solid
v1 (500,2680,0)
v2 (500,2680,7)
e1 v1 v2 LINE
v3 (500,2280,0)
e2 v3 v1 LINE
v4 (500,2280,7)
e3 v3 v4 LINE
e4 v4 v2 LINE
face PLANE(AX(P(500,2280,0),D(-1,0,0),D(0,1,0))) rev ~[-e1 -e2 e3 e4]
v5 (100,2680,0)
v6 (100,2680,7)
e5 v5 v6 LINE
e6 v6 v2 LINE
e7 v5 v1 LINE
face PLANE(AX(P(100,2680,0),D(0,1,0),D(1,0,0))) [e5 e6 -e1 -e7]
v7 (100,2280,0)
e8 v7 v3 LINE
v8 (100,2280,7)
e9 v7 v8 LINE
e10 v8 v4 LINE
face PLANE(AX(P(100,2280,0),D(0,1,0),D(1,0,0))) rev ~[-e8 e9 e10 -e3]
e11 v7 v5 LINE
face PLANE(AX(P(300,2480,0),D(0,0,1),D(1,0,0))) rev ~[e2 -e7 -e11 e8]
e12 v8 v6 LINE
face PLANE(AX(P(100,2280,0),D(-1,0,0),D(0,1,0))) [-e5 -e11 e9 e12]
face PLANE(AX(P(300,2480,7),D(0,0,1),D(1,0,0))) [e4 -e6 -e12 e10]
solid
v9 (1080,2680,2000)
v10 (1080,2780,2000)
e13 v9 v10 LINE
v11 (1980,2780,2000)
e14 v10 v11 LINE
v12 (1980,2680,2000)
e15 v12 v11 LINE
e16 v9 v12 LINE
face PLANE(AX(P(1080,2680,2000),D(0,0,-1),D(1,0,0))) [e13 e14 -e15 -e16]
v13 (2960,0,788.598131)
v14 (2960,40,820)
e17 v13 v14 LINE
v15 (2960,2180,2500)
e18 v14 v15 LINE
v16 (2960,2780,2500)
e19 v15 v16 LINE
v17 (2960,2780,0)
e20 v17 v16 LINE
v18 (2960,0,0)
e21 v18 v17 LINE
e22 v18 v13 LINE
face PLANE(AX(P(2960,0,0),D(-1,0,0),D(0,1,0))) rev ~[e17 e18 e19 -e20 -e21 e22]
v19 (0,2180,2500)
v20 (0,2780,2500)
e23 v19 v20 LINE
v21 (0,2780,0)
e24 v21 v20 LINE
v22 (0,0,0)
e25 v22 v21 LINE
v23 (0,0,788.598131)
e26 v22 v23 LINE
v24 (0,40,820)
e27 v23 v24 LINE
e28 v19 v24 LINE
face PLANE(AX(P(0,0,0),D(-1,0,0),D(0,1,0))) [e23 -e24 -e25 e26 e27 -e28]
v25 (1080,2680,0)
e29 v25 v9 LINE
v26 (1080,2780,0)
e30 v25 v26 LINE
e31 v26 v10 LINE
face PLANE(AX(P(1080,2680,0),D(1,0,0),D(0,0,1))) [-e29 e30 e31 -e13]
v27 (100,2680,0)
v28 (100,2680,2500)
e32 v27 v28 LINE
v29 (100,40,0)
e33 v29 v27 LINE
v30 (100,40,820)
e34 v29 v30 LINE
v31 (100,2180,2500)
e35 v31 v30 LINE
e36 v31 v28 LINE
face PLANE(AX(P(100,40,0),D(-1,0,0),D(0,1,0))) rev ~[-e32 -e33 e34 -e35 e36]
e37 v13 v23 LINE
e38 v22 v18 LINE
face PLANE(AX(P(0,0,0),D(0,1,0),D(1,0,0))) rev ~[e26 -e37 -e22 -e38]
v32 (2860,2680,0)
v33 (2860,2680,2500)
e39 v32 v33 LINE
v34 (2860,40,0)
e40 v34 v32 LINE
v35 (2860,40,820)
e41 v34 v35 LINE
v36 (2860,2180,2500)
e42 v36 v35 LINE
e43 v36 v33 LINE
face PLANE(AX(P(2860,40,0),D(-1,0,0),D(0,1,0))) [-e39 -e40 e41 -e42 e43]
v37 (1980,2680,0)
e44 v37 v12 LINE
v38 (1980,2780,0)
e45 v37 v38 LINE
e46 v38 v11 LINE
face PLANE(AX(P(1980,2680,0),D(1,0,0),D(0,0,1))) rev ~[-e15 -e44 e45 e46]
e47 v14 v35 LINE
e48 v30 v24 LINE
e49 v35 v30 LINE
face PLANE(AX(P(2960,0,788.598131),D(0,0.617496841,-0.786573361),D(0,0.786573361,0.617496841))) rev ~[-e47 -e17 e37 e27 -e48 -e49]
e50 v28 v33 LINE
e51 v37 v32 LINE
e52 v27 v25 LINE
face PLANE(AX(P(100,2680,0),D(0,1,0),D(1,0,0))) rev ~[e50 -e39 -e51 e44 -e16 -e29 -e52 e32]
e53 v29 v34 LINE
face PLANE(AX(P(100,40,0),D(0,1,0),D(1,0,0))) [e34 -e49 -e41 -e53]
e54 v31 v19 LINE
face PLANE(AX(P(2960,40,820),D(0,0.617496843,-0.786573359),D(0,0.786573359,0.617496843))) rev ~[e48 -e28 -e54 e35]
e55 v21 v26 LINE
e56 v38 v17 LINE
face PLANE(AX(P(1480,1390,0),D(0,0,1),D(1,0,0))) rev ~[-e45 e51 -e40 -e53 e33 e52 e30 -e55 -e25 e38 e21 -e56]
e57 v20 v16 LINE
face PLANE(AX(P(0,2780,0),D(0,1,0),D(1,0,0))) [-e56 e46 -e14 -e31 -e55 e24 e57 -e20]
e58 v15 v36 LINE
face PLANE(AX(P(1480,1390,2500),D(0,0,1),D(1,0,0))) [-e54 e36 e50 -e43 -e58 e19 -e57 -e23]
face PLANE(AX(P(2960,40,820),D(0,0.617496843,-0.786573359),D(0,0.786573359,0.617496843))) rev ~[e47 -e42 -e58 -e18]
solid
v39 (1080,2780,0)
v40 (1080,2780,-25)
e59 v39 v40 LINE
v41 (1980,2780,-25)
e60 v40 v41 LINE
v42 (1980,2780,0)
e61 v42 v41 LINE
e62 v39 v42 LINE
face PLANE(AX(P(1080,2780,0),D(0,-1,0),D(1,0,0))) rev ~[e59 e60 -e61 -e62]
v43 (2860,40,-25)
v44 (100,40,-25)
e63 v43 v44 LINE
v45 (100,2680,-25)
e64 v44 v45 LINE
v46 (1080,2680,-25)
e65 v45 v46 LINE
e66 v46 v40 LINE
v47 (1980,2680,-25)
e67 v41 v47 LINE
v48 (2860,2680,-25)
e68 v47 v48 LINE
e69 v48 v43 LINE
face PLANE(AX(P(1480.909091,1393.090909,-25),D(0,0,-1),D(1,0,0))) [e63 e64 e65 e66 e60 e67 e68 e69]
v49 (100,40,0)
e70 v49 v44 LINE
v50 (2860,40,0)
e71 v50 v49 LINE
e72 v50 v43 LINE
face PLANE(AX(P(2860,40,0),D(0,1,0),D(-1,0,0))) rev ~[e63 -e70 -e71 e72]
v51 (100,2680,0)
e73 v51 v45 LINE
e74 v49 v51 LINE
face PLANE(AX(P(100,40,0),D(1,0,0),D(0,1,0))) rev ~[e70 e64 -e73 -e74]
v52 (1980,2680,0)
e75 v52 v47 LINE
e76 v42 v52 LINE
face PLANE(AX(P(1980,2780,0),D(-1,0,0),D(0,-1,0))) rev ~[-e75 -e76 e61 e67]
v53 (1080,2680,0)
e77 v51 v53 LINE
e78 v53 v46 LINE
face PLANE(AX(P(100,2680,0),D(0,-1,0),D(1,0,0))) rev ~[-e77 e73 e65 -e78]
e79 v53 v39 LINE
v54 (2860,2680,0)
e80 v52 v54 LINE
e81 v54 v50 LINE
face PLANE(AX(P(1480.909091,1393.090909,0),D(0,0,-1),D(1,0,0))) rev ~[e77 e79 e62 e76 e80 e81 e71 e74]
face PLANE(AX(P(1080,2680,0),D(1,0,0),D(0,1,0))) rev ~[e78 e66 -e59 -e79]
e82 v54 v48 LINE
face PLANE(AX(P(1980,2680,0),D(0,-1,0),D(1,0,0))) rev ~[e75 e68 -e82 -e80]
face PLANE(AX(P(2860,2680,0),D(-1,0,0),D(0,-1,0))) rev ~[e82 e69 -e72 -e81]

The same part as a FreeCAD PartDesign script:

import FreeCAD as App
import Part
import Sketcher
from FreeCAD import Vector
Q = App.Units.Quantity

doc = App.newDocument("Part")
body = doc.addObject("PartDesign::Body", "Body")

sketch1 = body.newObject("Sketcher::SketchObject", "Sketch")
sketch1.AttachmentSupport = (doc.getObject("XY_Plane"), [""])
sketch1.MapMode = "FlatFace"
sketch1.addGeometry([
    Part.LineSegment(Vector(0, 2780, 0), Vector(0, 0, 0)),
    Part.LineSegment(Vector(0, 0, 0), Vector(2960, 0, 0)),
    Part.LineSegment(Vector(2960, 0, 0), Vector(2960, 2780, 0)),
    Part.LineSegment(Vector(2960, 2780, 0), Vector(0, 2780, 0)),
    Part.LineSegment(Vector(2860, 40, 0), Vector(100, 40, 0)),
    Part.LineSegment(Vector(100, 40, 0), Vector(100, 2680, 0)),
    Part.LineSegment(Vector(100, 2680, 0), Vector(2860, 2680, 0)),
    Part.LineSegment(Vector(2860, 2680, 0), Vector(2860, 40, 0)),
], False)
sketch1.addConstraint([
    Sketcher.Constraint("Coincident", 0, 2, 1, 1),
    Sketcher.Constraint("Coincident", 1, 2, 2, 1),
    Sketcher.Constraint("Coincident", 2, 2, 3, 1),
    Sketcher.Constraint("Coincident", 3, 2, 0, 1),
    Sketcher.Constraint("Coincident", 4, 2, 5, 1),
    Sketcher.Constraint("Coincident", 5, 2, 6, 1),
    Sketcher.Constraint("Coincident", 6, 2, 7, 1),
    Sketcher.Constraint("Coincident", 7, 2, 4, 1),
    Sketcher.Constraint("Vertical", 0),
    Sketcher.Constraint("Horizontal", 1),
    Sketcher.Constraint("Vertical", 2),
    Sketcher.Constraint("Horizontal", 3),
    Sketcher.Constraint("Horizontal", 4),
    Sketcher.Constraint("Vertical", 5),
    Sketcher.Constraint("Horizontal", 6),
    Sketcher.Constraint("Vertical", 7),
    Sketcher.Constraint("Coincident", 0, 2, -1, 1),
    Sketcher.Constraint("DistanceX", 1, 1, 1, 2, Q("2960 mm")),
    Sketcher.Constraint("DistanceX", 4, 2, 4, 1, Q("2760 mm")),
    Sketcher.Constraint("DistanceY", 0, 2, 0, 1, Q("2780 mm")),
    Sketcher.Constraint("DistanceY", 5, 1, 5, 2, Q("2640 mm")),
    Sketcher.Constraint("DistanceX", -1, 1, 4, 2, Q("100 mm")),
    Sketcher.Constraint("DistanceY", -1, 1, 4, 2, Q("40 mm")),
])
pad1 = body.newObject("PartDesign::Pad", "Pad")
pad1.Profile = sketch1
pad1.Length = 2500

sketch2 = body.newObject("Sketcher::SketchObject", "Sketch001")
sketch2.AttachmentSupport = (doc.getObject("XZ_Plane"), [""])
sketch2.MapMode = "FlatFace"
sketch2.AttachmentOffset = App.Placement(Vector(0, 0, -2680), App.Rotation())
sketch2.addGeometry([
    Part.LineSegment(Vector(1080, 2000, 0), Vector(1080, 0, 0)),
    Part.LineSegment(Vector(1080, 0, 0), Vector(1980, 0, 0)),
    Part.LineSegment(Vector(1980, 0, 0), Vector(1980, 2000, 0)),
    Part.LineSegment(Vector(1980, 2000, 0), Vector(1080, 2000, 0)),
], False)
sketch2.addConstraint([
    Sketcher.Constraint("Coincident", 0, 2, 1, 1),
    Sketcher.Constraint("Coincident", 1, 2, 2, 1),
    Sketcher.Constraint("Coincident", 2, 2, 3, 1),
    Sketcher.Constraint("Coincident", 3, 2, 0, 1),
    Sketcher.Constraint("Vertical", 0),
    Sketcher.Constraint("Horizontal", 1),
    Sketcher.Constraint("Vertical", 2),
    Sketcher.Constraint("Horizontal", 3),
    Sketcher.Constraint("PointOnObject", 0, 2, -1),
    Sketcher.Constraint("DistanceX", 1, 1, 1, 2, Q("900 mm")),
    Sketcher.Constraint("DistanceY", 0, 2, 0, 1, Q("2000 mm")),
    Sketcher.Constraint("DistanceX", -1, 1, 0, 2, Q("1080 mm")),
])
pocket1 = body.newObject("PartDesign::Pocket", "Pocket")
pocket1.Profile = sketch2
pocket1.Type = "ThroughAll"

sketch3 = body.newObject("Sketcher::SketchObject", "Sketch002")
sketch3.AttachmentSupport = (doc.getObject("YZ_Plane"), [""])
sketch3.MapMode = "FlatFace"
sketch3.AttachmentOffset = App.Placement(Vector(0, 0, 2960), App.Rotation())
sketch3.addGeometry([
    Part.LineSegment(Vector(0, 2500, 0), Vector(0, 820, 0)),
    Part.LineSegment(Vector(0, 820, 0), Vector(40, 820, 0)),
    Part.LineSegment(Vector(40, 820, 0), Vector(2180, 2500, 0)),
    Part.LineSegment(Vector(2180, 2500, 0), Vector(0, 2500, 0)),
], False)
sketch3.addConstraint([
    Sketcher.Constraint("Coincident", 0, 2, 1, 1),
    Sketcher.Constraint("Coincident", 1, 2, 2, 1),
    Sketcher.Constraint("Coincident", 2, 2, 3, 1),
    Sketcher.Constraint("Coincident", 3, 2, 0, 1),
    Sketcher.Constraint("Vertical", 0),
    Sketcher.Constraint("Horizontal", 1),
    Sketcher.Constraint("Horizontal", 3),
    Sketcher.Constraint("PointOnObject", 0, 2, -2),
    Sketcher.Constraint("DistanceX", 1, 1, 1, 2, Q("40 mm")),
    Sketcher.Constraint("DistanceX", 3, 2, 3, 1, Q("2180 mm")),
    Sketcher.Constraint("DistanceY", 0, 2, 0, 1, Q("1680 mm")),
    Sketcher.Constraint("DistanceY", -1, 1, 0, 2, Q("820 mm")),
])
pocket2 = body.newObject("PartDesign::Pocket", "Pocket001")
pocket2.Profile = sketch3
pocket2.Type = "ThroughAll"

sketch4 = body.newObject("Sketcher::SketchObject", "Sketch003")
sketch4.AttachmentSupport = (doc.getObject("YZ_Plane"), [""])
sketch4.MapMode = "FlatFace"
sketch4.AttachmentOffset = App.Placement(Vector(0, 0, 2960), App.Rotation())
sketch4.addGeometry([
    Part.LineSegment(Vector(40, 820, 0), Vector(0, 820, 0)),
    Part.LineSegment(Vector(0, 820, 0), Vector(0, 789, 0)),
    Part.LineSegment(Vector(0, 789, 0), Vector(40, 820, 0)),
], False)
sketch4.addConstraint([
    Sketcher.Constraint("Coincident", 0, 2, 1, 1),
    Sketcher.Constraint("Coincident", 1, 2, 2, 1),
    Sketcher.Constraint("Coincident", 2, 2, 0, 1),
    Sketcher.Constraint("Horizontal", 0),
    Sketcher.Constraint("Vertical", 1),
    Sketcher.Constraint("PointOnObject", 0, 2, -2),
    Sketcher.Constraint("DistanceX", 0, 2, 0, 1, Q("40 mm")),
    Sketcher.Constraint("DistanceY", -1, 1, 0, 2, Q("820 mm")),
    Sketcher.Constraint("DistanceY", 1, 2, 1, 1, Q("31.401869 mm")),
])
pocket3 = body.newObject("PartDesign::Pocket", "Pocket002")
pocket3.Profile = sketch4
pocket3.Type = "ThroughAll"
body2 = doc.addObject("PartDesign::Body", "Body001")

sketch5 = body2.newObject("Sketcher::SketchObject", "Sketch004")
sketch5.AttachmentSupport = (doc.getObject("XY_Plane001"), [""])
sketch5.MapMode = "FlatFace"
sketch5.addGeometry([
    Part.LineSegment(Vector(1080, 2680, 0), Vector(1080, 2780, 0)),
    Part.LineSegment(Vector(1080, 2780, 0), Vector(1980, 2780, 0)),
    Part.LineSegment(Vector(1980, 2780, 0), Vector(1980, 2680, 0)),
    Part.LineSegment(Vector(1980, 2680, 0), Vector(2860, 2680, 0)),
    Part.LineSegment(Vector(2860, 2680, 0), Vector(2860, 40, 0)),
    Part.LineSegment(Vector(2860, 40, 0), Vector(100, 40, 0)),
    Part.LineSegment(Vector(100, 40, 0), Vector(100, 2680, 0)),
    Part.LineSegment(Vector(100, 2680, 0), Vector(1080, 2680, 0)),
], False)
sketch5.addConstraint([
    Sketcher.Constraint("Coincident", 0, 2, 1, 1),
    Sketcher.Constraint("Coincident", 1, 2, 2, 1),
    Sketcher.Constraint("Coincident", 2, 2, 3, 1),
    Sketcher.Constraint("Coincident", 3, 2, 4, 1),
    Sketcher.Constraint("Coincident", 4, 2, 5, 1),
    Sketcher.Constraint("Coincident", 5, 2, 6, 1),
    Sketcher.Constraint("Coincident", 6, 2, 7, 1),
    Sketcher.Constraint("Coincident", 7, 2, 0, 1),
    Sketcher.Constraint("Vertical", 0),
    Sketcher.Constraint("Horizontal", 1),
    Sketcher.Constraint("Vertical", 2),
    Sketcher.Constraint("Horizontal", 3),
    Sketcher.Constraint("Vertical", 4),
    Sketcher.Constraint("Horizontal", 5),
    Sketcher.Constraint("Vertical", 6),
    Sketcher.Constraint("Horizontal", 7),
    Sketcher.Constraint("Horizontal", 3, 2, 6, 2),
    Sketcher.Constraint("DistanceX", 1, 1, 1, 2, Q("900 mm")),
    Sketcher.Constraint("DistanceX", 3, 1, 3, 2, Q("880 mm")),
    Sketcher.Constraint("DistanceX", 5, 2, 5, 1, Q("2760 mm")),
    Sketcher.Constraint("DistanceY", 0, 1, 0, 2, Q("100 mm")),
    Sketcher.Constraint("DistanceY", 4, 2, 4, 1, Q("2640 mm")),
    Sketcher.Constraint("DistanceX", -1, 1, 0, 2, Q("1080 mm")),
    Sketcher.Constraint("DistanceY", -1, 1, 0, 2, Q("2780 mm")),
])
pad2 = body2.newObject("PartDesign::Pad", "Pad001")
pad2.Profile = sketch5
pad2.Length = 25
pad2.Reversed = True
body3 = doc.addObject("PartDesign::Body", "Body002")

sketch6 = body3.newObject("Sketcher::SketchObject", "Sketch005")
sketch6.AttachmentSupport = (doc.getObject("XY_Plane002"), [""])
sketch6.MapMode = "FlatFace"
sketch6.addGeometry([
    Part.LineSegment(Vector(100, 2680, 0), Vector(100, 2280, 0)),
    Part.LineSegment(Vector(100, 2280, 0), Vector(500, 2280, 0)),
    Part.LineSegment(Vector(500, 2280, 0), Vector(500, 2680, 0)),
    Part.LineSegment(Vector(500, 2680, 0), Vector(100, 2680, 0)),
], False)
sketch6.addConstraint([
    Sketcher.Constraint("Coincident", 0, 2, 1, 1),
    Sketcher.Constraint("Coincident", 1, 2, 2, 1),
    Sketcher.Constraint("Coincident", 2, 2, 3, 1),
    Sketcher.Constraint("Coincident", 3, 2, 0, 1),
    Sketcher.Constraint("Vertical", 0),
    Sketcher.Constraint("Horizontal", 1),
    Sketcher.Constraint("Vertical", 2),
    Sketcher.Constraint("Horizontal", 3),
    Sketcher.Constraint("Equal", 3, 0),
    Sketcher.Constraint("DistanceX", 1, 1, 1, 2, Q("400 mm")),
    Sketcher.Constraint("DistanceX", -1, 1, 0, 2, Q("100 mm")),
    Sketcher.Constraint("DistanceY", -1, 1, 0, 2, Q("2280 mm")),
])
pad3 = body3.newObject("PartDesign::Pad", "Pad002")
pad3.Profile = sketch6
pad3.Length = 7

doc.recompute()
